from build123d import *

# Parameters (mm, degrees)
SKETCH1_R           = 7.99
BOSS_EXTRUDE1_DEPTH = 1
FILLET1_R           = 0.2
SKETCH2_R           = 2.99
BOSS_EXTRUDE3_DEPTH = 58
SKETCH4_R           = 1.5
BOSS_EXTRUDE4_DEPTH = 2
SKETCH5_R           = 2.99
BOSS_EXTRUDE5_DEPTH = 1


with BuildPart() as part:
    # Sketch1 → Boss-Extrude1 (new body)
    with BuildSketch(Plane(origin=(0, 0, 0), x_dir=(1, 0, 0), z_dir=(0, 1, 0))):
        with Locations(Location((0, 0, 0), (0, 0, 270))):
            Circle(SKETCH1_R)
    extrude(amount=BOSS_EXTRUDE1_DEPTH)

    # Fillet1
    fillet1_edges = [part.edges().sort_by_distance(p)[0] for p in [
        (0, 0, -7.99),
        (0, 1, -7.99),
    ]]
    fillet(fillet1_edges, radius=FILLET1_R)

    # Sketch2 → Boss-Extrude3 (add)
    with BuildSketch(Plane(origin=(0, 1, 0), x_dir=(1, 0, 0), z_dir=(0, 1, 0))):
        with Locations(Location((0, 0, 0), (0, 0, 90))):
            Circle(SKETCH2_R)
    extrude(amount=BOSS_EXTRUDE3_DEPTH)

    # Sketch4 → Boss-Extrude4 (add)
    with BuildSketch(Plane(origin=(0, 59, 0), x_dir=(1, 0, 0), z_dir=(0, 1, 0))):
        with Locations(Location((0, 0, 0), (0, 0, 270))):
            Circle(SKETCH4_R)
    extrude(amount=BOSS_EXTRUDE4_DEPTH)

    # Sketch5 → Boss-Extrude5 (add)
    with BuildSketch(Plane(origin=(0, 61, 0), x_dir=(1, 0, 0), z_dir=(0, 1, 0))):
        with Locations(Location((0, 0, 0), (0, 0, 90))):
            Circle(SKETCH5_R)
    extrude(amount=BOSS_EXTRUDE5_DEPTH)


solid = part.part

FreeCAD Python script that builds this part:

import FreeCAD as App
import Part
import Sketcher
from FreeCAD import Vector


def edges_at(feature, points):
    """Names of the edges that pass closest to the given points."""
    edges = feature.Shape.Edges
    near = lambda p: min(range(len(edges)), key=lambda i: edges[i].distToShape(Part.Vertex(*p))[0])
    return sorted({f"Edge{near(p) + 1}" for p in points})

doc = App.newDocument("Part")
body = doc.addObject("PartDesign::Body", "Body")

sketch1 = doc.addObject("Sketcher::SketchObject", "Sketch")
body.addObject(sketch1)
sketch1.AttachmentSupport = (doc.XZ_Plane, [""])
sketch1.MapMode = "FlatFace"
sketch1.addGeometry(Part.Circle(Vector(0, 0, 0), Vector(0, 0, 1), 8), False)
sketch1.addConstraint([
    Sketcher.Constraint("Coincident", 0, 3, -1, 1),
    Sketcher.Constraint("Diameter", 0, 15.98),
])
pad1 = doc.addObject("PartDesign::Pad", "Pad")
body.addObject(pad1)
pad1.Profile = sketch1
pad1.Length = 1
pad1.Reversed = True
doc.recompute()

fillet = doc.addObject("PartDesign::Fillet", "Fillet")
body.addObject(fillet)
fillet.Base = (pad1, edges_at(pad1, [(0, 0, -7.99), (0, 1, -7.99)]))
fillet.Radius = 0.2

sketch2 = doc.addObject("Sketcher::SketchObject", "Sketch001")
body.addObject(sketch2)
sketch2.AttachmentSupport = (doc.XZ_Plane, [""])
sketch2.MapMode = "FlatFace"
sketch2.AttachmentOffset = App.Placement(Vector(0, 0, -1), App.Rotation())
sketch2.addGeometry(Part.Circle(Vector(0, 0, 0), Vector(0, 0, 1), 3), False)
sketch2.addConstraint([
    Sketcher.Constraint("Coincident", 0, 3, -1, 1),
    Sketcher.Constraint("Diameter", 0, 5.98),
])
pad2 = doc.addObject("PartDesign::Pad", "Pad001")
body.addObject(pad2)
pad2.Profile = sketch2
pad2.Length = 58
pad2.Reversed = True

sketch3 = doc.addObject("Sketcher::SketchObject", "Sketch002")
body.addObject(sketch3)
sketch3.AttachmentSupport = (doc.XZ_Plane, [""])
sketch3.MapMode = "FlatFace"
sketch3.AttachmentOffset = App.Placement(Vector(0, 0, -59), App.Rotation())
sketch3.addGeometry(Part.Circle(Vector(0, 0, 0), Vector(0, 0, 1), 1.5), False)
sketch3.addConstraint([
    Sketcher.Constraint("Coincident", 0, 3, -1, 1),
    Sketcher.Constraint("Diameter", 0, 3.0),
])
pad3 = doc.addObject("PartDesign::Pad", "Pad002")
body.addObject(pad3)
pad3.Profile = sketch3
pad3.Length = 2
pad3.Reversed = True

sketch4 = doc.addObject("Sketcher::SketchObject", "Sketch003")
body.addObject(sketch4)
sketch4.AttachmentSupport = (doc.XZ_Plane, [""])
sketch4.MapMode = "FlatFace"
sketch4.AttachmentOffset = App.Placement(Vector(0, 0, -61), App.Rotation())
sketch4.addGeometry(Part.Circle(Vector(0, 0, 0), Vector(0, 0, 1), 3), False)
sketch4.addConstraint([
    Sketcher.Constraint("Coincident", 0, 3, -1, 1),
    Sketcher.Constraint("Diameter", 0, 5.98),
])
pad4 = doc.addObject("PartDesign::Pad", "Pad003")
body.addObject(pad4)
pad4.Profile = sketch4
pad4.Length = 1
pad4.Reversed = True

doc.recompute()
